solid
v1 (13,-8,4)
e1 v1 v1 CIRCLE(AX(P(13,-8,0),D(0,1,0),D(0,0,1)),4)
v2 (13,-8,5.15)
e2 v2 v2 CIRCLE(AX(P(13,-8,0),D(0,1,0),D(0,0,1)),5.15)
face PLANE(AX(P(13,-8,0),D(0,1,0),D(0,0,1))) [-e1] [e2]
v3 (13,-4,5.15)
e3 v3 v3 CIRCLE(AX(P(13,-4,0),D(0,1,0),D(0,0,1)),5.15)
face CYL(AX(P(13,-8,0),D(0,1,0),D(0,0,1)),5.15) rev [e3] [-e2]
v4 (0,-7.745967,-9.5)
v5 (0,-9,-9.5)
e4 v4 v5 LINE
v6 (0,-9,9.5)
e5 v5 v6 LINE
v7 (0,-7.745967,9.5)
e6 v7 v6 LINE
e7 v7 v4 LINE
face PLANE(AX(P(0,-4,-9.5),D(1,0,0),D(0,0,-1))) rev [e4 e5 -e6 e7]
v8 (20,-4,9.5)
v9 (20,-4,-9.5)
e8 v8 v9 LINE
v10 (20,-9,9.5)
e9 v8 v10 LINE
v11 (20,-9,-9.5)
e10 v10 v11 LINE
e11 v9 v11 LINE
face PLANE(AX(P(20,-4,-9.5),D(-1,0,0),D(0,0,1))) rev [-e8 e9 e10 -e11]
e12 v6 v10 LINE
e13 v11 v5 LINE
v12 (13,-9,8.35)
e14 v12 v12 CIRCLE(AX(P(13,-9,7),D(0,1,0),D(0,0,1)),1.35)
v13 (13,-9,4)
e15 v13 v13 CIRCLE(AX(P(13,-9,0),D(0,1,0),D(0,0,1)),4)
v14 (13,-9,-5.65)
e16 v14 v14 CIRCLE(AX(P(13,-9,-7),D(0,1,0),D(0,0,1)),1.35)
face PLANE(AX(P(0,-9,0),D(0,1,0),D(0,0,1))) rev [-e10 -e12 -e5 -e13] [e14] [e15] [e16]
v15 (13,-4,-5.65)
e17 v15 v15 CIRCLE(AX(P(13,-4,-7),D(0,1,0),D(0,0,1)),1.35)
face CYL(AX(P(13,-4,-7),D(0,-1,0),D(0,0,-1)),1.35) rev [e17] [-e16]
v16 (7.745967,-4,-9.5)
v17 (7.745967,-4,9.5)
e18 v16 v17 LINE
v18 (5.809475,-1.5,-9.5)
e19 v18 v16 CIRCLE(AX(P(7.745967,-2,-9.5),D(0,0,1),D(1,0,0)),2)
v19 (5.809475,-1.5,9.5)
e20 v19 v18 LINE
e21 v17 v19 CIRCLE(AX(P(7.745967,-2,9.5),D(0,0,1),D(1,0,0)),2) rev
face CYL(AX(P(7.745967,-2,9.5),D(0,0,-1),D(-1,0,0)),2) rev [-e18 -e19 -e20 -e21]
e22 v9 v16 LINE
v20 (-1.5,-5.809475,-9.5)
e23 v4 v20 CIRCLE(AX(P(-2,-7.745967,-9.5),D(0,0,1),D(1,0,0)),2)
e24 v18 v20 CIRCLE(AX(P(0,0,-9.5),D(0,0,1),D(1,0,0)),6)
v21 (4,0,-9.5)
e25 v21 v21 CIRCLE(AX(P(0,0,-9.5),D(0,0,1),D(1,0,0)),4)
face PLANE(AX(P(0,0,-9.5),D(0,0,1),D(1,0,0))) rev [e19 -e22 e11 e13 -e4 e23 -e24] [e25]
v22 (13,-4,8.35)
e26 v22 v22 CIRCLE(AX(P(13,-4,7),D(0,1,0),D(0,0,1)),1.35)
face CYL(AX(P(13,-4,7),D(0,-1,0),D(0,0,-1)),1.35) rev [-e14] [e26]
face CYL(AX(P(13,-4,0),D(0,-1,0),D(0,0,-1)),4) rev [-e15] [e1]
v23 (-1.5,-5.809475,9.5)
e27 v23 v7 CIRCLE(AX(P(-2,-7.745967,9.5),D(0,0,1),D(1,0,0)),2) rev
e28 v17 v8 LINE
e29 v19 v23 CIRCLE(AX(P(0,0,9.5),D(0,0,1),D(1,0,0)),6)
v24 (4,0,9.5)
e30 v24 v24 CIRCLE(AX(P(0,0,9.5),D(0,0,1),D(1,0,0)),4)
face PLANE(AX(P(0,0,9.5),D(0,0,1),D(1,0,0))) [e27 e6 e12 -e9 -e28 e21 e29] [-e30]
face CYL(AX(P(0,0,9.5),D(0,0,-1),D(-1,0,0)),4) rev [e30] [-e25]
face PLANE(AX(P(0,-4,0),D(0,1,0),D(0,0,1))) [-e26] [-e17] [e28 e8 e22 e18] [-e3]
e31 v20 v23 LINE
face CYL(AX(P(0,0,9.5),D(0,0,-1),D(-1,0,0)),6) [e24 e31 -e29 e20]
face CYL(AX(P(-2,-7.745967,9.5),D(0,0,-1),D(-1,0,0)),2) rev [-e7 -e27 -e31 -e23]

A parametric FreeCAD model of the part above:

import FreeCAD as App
import Part
import Sketcher
from FreeCAD import Vector


def edges_at(feature, points):
    """Names of the edges that pass closest to the given points."""
    edges = feature.Shape.Edges
    near = lambda p: min(range(len(edges)), key=lambda i: edges[i].distToShape(Part.Vertex(*p))[0])
    return sorted({f"Edge{near(p) + 1}" for p in points})

doc = App.newDocument("Part")
params = doc.addObject("Spreadsheet::Sheet", "Params")
for row, (alias, value) in enumerate([
    ("sketch1_diameter", "12 mm"),
    ("sketch1_diameter2", "8 mm"),
    ("pad1_length", "19 mm"),
    ("sketch2_diameter", "8 mm"),
    ("sketch2_diameter2", "2.7 mm"),
    ("sketch2_width", "20 mm"),
    ("sketch2_height", "19 mm"),
    ("pad2_length", "5 mm"),
    ("sketch3_diameter", "10.3 mm"),
    ("pocket1_length", "4 mm"),
    ("fillet_radius", "2 mm"),
], start=1):
    params.set(f"A{row}", alias)
    params.set(f"B{row}", "=" + value)
    params.setAlias(f"B{row}", alias)

body = doc.addObject("PartDesign::Body", "Body")

sketch1 = doc.addObject("Sketcher::SketchObject", "Sketch")
body.addObject(sketch1)
sketch1.AttachmentSupport = (doc.XY_Plane, [""])
sketch1.MapMode = "FlatFace"
sketch1.addGeometry(Part.Circle(Vector(0, 0, 0), Vector(0, 0, 1), 6), False)
sketch1.addGeometry(Part.Circle(Vector(0, 0, 0), Vector(0, 0, 1), 4), False)
sketch1.addConstraint(Sketcher.Constraint("Coincident", 0, 3, -1, 1))
sketch1.addConstraint(Sketcher.Constraint("Coincident", 1, 3, -1, 1))
sketch1.addConstraint(Sketcher.Constraint("Diameter", 0, 12.0))
sketch1.addConstraint(Sketcher.Constraint("Diameter", 1, 8.0))
sketch1.setExpression("Constraints[2]", "Params.sketch1_diameter")
sketch1.setExpression("Constraints[3]", "Params.sketch1_diameter2")
pad1 = doc.addObject("PartDesign::Pad", "Pad")
body.addObject(pad1)
pad1.Profile = sketch1
pad1.setExpression("Length", "Params.pad1_length")
pad1.Midplane = True

sketch2 = doc.addObject("Sketcher::SketchObject", "Sketch001")
body.addObject(sketch2)
sketch2.AttachmentSupport = (doc.XZ_Plane, [""])
sketch2.MapMode = "FlatFace"
sketch2.AttachmentOffset = App.Placement(Vector(0, 0, 9), App.Rotation())
sketch2.addGeometry(Part.LineSegment(Vector(0, -9.5, 0), Vector(0, 9.5, 0)), False)
sketch2.addGeometry(Part.LineSegment(Vector(0, 9.5, 0), Vector(20, 9.5, 0)), False)
sketch2.addGeometry(Part.LineSegment(Vector(20, 9.5, 0), Vector(20, -9.5, 0)), False)
sketch2.addGeometry(Part.LineSegment(Vector(20, -9.5, 0), Vector(0, -9.5, 0)), False)
sketch2.addGeometry(Part.Circle(Vector(13, 7, 0), Vector(0, 0, 1), 1.4), False)
sketch2.addGeometry(Part.Circle(Vector(13, 0, 0), Vector(0, 0, 1), 4), False)
sketch2.addGeometry(Part.Circle(Vector(13, -7, 0), Vector(0, 0, 1), 1.4), False)
sketch2.addConstraint(Sketcher.Constraint("Coincident", 0, 2, 1, 1))
sketch2.addConstraint(Sketcher.Constraint("Coincident", 1, 2, 2, 1))
sketch2.addConstraint(Sketcher.Constraint("Coincident", 2, 2, 3, 1))
sketch2.addConstraint(Sketcher.Constraint("Coincident", 3, 2, 0, 1))
sketch2.addConstraint(Sketcher.Constraint("Vertical", 0))
sketch2.addConstraint(Sketcher.Constraint("Horizontal", 1))
sketch2.addConstraint(Sketcher.Constraint("Vertical", 2))
sketch2.addConstraint(Sketcher.Constraint("Horizontal", 3))
sketch2.addConstraint(Sketcher.Constraint("Equal", 4, 6))
sketch2.addConstraint(Sketcher.Constraint("Symmetric", 0, 2, 3, 2, -1, 1))
sketch2.addConstraint(Sketcher.Constraint("Symmetric", 4, 3, 6, 3, -1))
sketch2.addConstraint(Sketcher.Constraint("PointOnObject", 5, 3, -1))
sketch2.addConstraint(Sketcher.Constraint("Vertical", 4, 3, 5, 3))
sketch2.addConstraint(Sketcher.Constraint("Diameter", 5, 8.0))
sketch2.addConstraint(Sketcher.Constraint("Diameter", 4, 2.7))
sketch2.addConstraint(Sketcher.Constraint("DistanceX", 1, 1, 1, 2, 20.0))
sketch2.addConstraint(Sketcher.Constraint("DistanceY", 0, 1, 0, 2, 19.0))
sketch2.addConstraint(Sketcher.Constraint("DistanceX", -1, 1, 4, 3, 13.0))
sketch2.addConstraint(Sketcher.Constraint("DistanceY", -1, 1, 4, 3, 7.0))
sketch2.setExpression("Constraints[13]", "Params.sketch2_diameter")
sketch2.setExpression("Constraints[14]", "Params.sketch2_diameter2")
sketch2.setExpression("Constraints[15]", "Params.sketch2_width")
sketch2.setExpression("Constraints[16]", "Params.sketch2_height")
pad2 = doc.addObject("PartDesign::Pad", "Pad001")
body.addObject(pad2)
pad2.Profile = sketch2
pad2.setExpression("Length", "Params.pad2_length")
pad2.Reversed = True

sketch3 = doc.addObject("Sketcher::SketchObject", "Sketch002")
body.addObject(sketch3)
sketch3.AttachmentSupport = (doc.XZ_Plane, [""])
sketch3.MapMode = "FlatFace"
sketch3.AttachmentOffset = App.Placement(Vector(0, 0, 4), App.Rotation())
sketch3.addGeometry(Part.Circle(Vector(13, 0, 0), Vector(0, 0, 1), 5), False)
sketch3.addConstraint(Sketcher.Constraint("PointOnObject", 0, 3, -1))
sketch3.addConstraint(Sketcher.Constraint("Diameter", 0, 10.3))
sketch3.addConstraint(Sketcher.Constraint("DistanceX", -1, 1, 0, 3, 13.0))
sketch3.setExpression("Constraints[1]", "Params.sketch3_diameter")
pocket1 = doc.addObject("PartDesign::Pocket", "Pocket")
body.addObject(pocket1)
pocket1.Profile = sketch3
pocket1.setExpression("Length", "Params.pocket1_length")
pocket1.Reversed = True
doc.recompute()

fillet = doc.addObject("PartDesign::Fillet", "Fillet")
body.addObject(fillet)
fillet.Base = (pocket1, edges_at(pocket1, [(0, -6, 0), (4.472, -4, 0)]))
fillet.setExpression("Radius", "Params.fillet_radius")

doc.recompute()
